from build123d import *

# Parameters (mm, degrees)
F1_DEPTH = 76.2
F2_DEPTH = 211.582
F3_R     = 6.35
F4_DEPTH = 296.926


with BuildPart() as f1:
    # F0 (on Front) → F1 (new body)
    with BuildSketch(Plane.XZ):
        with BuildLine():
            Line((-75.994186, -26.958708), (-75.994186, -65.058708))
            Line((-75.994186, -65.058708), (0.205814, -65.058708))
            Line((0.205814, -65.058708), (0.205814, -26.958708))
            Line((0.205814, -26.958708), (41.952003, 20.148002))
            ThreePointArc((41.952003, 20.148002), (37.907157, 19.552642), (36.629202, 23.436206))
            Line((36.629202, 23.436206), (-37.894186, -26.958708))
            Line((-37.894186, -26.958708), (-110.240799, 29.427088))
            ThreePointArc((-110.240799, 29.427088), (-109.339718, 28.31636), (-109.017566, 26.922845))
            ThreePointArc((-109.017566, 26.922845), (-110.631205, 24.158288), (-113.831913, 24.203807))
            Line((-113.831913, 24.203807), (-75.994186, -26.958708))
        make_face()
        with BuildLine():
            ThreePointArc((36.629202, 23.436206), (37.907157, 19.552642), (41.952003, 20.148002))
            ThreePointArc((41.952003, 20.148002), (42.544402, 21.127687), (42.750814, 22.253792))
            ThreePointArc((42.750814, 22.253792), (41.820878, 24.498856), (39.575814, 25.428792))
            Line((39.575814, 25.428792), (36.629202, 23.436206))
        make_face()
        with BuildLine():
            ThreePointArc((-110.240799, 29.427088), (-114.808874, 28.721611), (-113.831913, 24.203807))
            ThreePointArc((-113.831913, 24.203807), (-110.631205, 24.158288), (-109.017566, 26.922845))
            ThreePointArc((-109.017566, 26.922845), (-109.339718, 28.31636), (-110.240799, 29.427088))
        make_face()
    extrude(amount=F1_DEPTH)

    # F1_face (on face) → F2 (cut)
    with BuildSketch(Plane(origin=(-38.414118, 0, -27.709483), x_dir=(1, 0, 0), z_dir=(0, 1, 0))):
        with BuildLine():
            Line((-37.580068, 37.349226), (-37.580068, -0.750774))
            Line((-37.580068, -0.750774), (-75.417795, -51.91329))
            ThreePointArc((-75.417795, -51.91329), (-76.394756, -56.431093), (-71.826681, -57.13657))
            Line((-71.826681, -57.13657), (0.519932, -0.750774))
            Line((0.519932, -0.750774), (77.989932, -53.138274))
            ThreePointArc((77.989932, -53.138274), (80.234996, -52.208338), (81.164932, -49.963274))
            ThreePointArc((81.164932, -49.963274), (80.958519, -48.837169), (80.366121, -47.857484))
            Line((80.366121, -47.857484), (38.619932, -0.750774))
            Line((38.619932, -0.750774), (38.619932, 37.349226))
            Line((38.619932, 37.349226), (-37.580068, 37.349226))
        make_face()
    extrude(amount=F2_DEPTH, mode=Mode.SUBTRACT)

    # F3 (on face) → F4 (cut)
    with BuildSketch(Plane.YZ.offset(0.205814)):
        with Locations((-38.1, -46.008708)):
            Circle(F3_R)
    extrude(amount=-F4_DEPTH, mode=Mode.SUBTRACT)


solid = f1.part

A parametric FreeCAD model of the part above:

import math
import FreeCAD as App
import Part
import Sketcher
Q = App.Units.Quantity

doc = App.newDocument("Part")
body = doc.addObject("PartDesign::Body", "Body")

# Sketch on XZ plane
sketch1 = body.newObject("Sketcher::SketchObject", "Sketch")
sketch1.AttachmentSupport = (doc.getObject("XZ_Plane"), [""])
sketch1.MapMode = "FlatFace"
sketch1.addGeometry([
    Part.LineSegment(App.Vector(-75.994186, -26.958708, 0), App.Vector(-75.994186, -65.058708, 0)),  # 0
    Part.LineSegment(App.Vector(-75.994186, -65.058708, 0), App.Vector(0.205814, -65.058708, 0)),  # 1
    Part.LineSegment(App.Vector(0.205814, -65.058708, 0), App.Vector(0.205814, -26.958708, 0)),  # 2
    Part.LineSegment(App.Vector(0.205814, -26.958708, 0), App.Vector(41.952003, 20.148002, 0)),  # 3
    Part.ArcOfCircle(Part.Circle(App.Vector(39.575818, 22.25379, 0), App.Vector(0, 0, 1), 3.174996), math.radians(-41.547541), math.radians(0.000031)),  # 4
    Part.ArcOfCircle(Part.Circle(App.Vector(39.575814, 22.253792, 0), App.Vector(0, 0, 1), 3.175), math.radians(0.000002), math.radians(89.999998)),  # 5
    Part.LineSegment(App.Vector(39.575814, 25.428792, 0), App.Vector(36.629202, 23.436206, 0)),  # 6
    Part.LineSegment(App.Vector(36.629202, 23.436206, 0), App.Vector(-37.894186, -26.958708, 0)),  # 7
    Part.LineSegment(App.Vector(-37.894186, -26.958708, 0), App.Vector(-110.240799, 29.427088, 0)),  # 8
    Part.ArcOfCircle(Part.Circle(App.Vector(-112.192566, 26.922845, 0), App.Vector(0, 0, 1), 3.175), math.radians(52.067719), math.radians(238.913622)),  # 9
    Part.LineSegment(App.Vector(-113.831913, 24.203807, 0), App.Vector(-75.994186, -26.958708, 0)),  # 10
], False)
sketch1.addConstraint([
    Sketcher.Constraint("Coincident", 0, 2, 1, 1),
    Sketcher.Constraint("Coincident", 1, 2, 2, 1),
    Sketcher.Constraint("Coincident", 2, 2, 3, 1),
    Sketcher.Constraint("Tangent", 3, 2, 4, 1),
    Sketcher.Constraint("Tangent", 4, 2, 5, 1),
    Sketcher.Constraint("Coincident", 5, 2, 6, 1),
    Sketcher.Constraint("Coincident", 6, 2, 7, 1),
    Sketcher.Constraint("Coincident", 7, 2, 8, 1),
    Sketcher.Constraint("Tangent", 8, 2, 9, 1),
    Sketcher.Constraint("Coincident", 9, 2, 10, 1),
    Sketcher.Constraint("Coincident", 10, 2, 0, 1),
    Sketcher.Constraint("Vertical", 0),
    Sketcher.Constraint("Horizontal", 1),
    Sketcher.Constraint("Vertical", 2),
    Sketcher.Constraint("Equal", 5, 9),
    Sketcher.Constraint("Parallel", 6, 7),
    Sketcher.Constraint("Horizontal", 5, 3, 4, 2),
    Sketcher.Constraint("Horizontal", 2, 2, 7, 2),
    Sketcher.Constraint("Horizontal", 7, 2, 10, 2),
    Sketcher.Constraint("DistanceX", 1, 1, 1, 2, Q("3 in")),
    Sketcher.Constraint("DistanceY", 0, 2, 0, 1, Q("1.5 in")),
    Sketcher.Constraint("Radius", 4, Q("0.1249998 in")),
    Sketcher.Constraint("Radius", 5, Q("0.125 in")),
    Sketcher.Constraint("DistanceX", 7, 2, 2, 2, Q("1.5 in")),
    Sketcher.Constraint("DistanceX", 0, 2, 5, 3, Q("4.55 in")),
    Sketcher.Constraint("DistanceX", 2, 2, 5, 2, Q("1.55 in")),
    Sketcher.Constraint("DistanceY", 0, 2, 5, 3, Q("3.4375 in")),
    Sketcher.Constraint("DistanceX", 8, 2, -1, 1, 110.240799),
    Sketcher.Constraint("DistanceX", 6, 2, 3, 2, 5.322801),
    Sketcher.Constraint("DistanceX", -1, 1, 4, 3, 39.575818),
    Sketcher.Constraint("DistanceY", -1, 1, 4, 3, 22.25379),
    Sketcher.Constraint("DistanceY", -1, 1, 8, 2, 29.427088),
    Sketcher.Constraint("DistanceY", 9, 2, 9, 3, 2.719038),
])
pad1 = body.newObject("PartDesign::Pad", "Pad")
pad1.Profile = sketch1
pad1.Length = Q("3 in")

# Sketch on XZ plane
sketch2 = body.newObject("Sketcher::SketchObject", "Sketch001")
sketch2.AttachmentSupport = (doc.getObject("XZ_Plane"), [""])
sketch2.MapMode = "FlatFace"
sketch2.addGeometry([
    Part.LineSegment(App.Vector(-75.994186, -65.058709, 0), App.Vector(-75.994186, -26.958709, 0)),  # 0
    Part.LineSegment(App.Vector(-75.994186, -26.958709, 0), App.Vector(-113.831913, 24.203807, 0)),  # 1
    Part.ArcOfCircle(Part.Circle(App.Vector(-112.192566, 26.922845, 0), App.Vector(0, 0, 1), 3.175), math.radians(52.067711), math.radians(238.913619)),  # 2
    Part.LineSegment(App.Vector(-110.240799, 29.427087, 0), App.Vector(-37.894186, -26.958709, 0)),  # 3
    Part.LineSegment(App.Vector(-37.894186, -26.958709, 0), App.Vector(39.575814, 25.428791, 0)),  # 4
    Part.ArcOfCircle(Part.Circle(App.Vector(39.575814, 22.253791, 0), App.Vector(0, 0, 1), 3.175), math.radians(0.000002), math.radians(89.999998)),  # 5
    Part.ArcOfCircle(Part.Circle(App.Vector(39.575805, 22.253794, 0), App.Vector(0, 0, 1), 3.175009), math.radians(-41.547449), math.radians(-0.000061)),  # 6
    Part.LineSegment(App.Vector(41.952003, 20.148001, 0), App.Vector(0.205814, -26.958709, 0)),  # 7
    Part.LineSegment(App.Vector(0.205814, -26.958709, 0), App.Vector(0.205814, -65.058709, 0)),  # 8
    Part.LineSegment(App.Vector(0.205814, -65.058709, 0), App.Vector(-75.994186, -65.058709, 0)),  # 9
], False)
sketch2.addConstraint([
    Sketcher.Constraint("Coincident", 0, 2, 1, 1),
    Sketcher.Constraint("Coincident", 1, 2, 2, 2),
    Sketcher.Constraint("Tangent", 2, 1, 3, 1),
    Sketcher.Constraint("Coincident", 3, 2, 4, 1),
    Sketcher.Constraint("Coincident", 4, 2, 5, 2),
    Sketcher.Constraint("Tangent", 5, 1, 6, 2),
    Sketcher.Constraint("Tangent", 6, 1, 7, 1),
    Sketcher.Constraint("Coincident", 7, 2, 8, 1),
    Sketcher.Constraint("Coincident", 8, 2, 9, 1),
    Sketcher.Constraint("Coincident", 9, 2, 0, 1),
    Sketcher.Constraint("Vertical", 0),
    Sketcher.Constraint("Vertical", 8),
    Sketcher.Constraint("Horizontal", 9),
    Sketcher.Constraint("Equal", 2, 5),
    Sketcher.Constraint("Horizontal", 0, 2, 3, 2),
    Sketcher.Constraint("Horizontal", 3, 2, 7, 2),
    Sketcher.Constraint("Vertical", 5, 3, 4, 2),
    Sketcher.Constraint("DistanceX", 9, 2, 9, 1, Q("3 in")),
    Sketcher.Constraint("DistanceY", 0, 1, 0, 2, Q("1.5 in")),
    Sketcher.Constraint("Radius", 2, Q("0.125 in")),
    Sketcher.Constraint("DistanceX", 0, 2, 3, 2, Q("1.5 in")),
    Sketcher.Constraint("DistanceX", 0, 2, 5, 3, Q("4.55 in")),
    Sketcher.Constraint("Radius", 6, 3.175009),
    Sketcher.Constraint("DistanceY", 0, 2, 6, 3, Q("1.9375001 in")),
    Sketcher.Constraint("DistanceY", 5, 1, 4, 2, Q("0.125 in")),
    Sketcher.Constraint("DistanceX", 2, 1, -1, 1, 110.240799),
    Sketcher.Constraint("DistanceY", -1, 1, 6, 1, 20.148001),
    Sketcher.Constraint("DistanceX", 2, 3, 5, 3, 151.76838),
    Sketcher.Constraint("DistanceY", 6, 3, 2, 3, 4.66905),
    Sketcher.Constraint("DistanceY", 1, 2, 2, 1, 5.22328),
])
pocket1 = body.newObject("PartDesign::Pocket", "Pocket")
pocket1.Profile = sketch2
pocket1.Length = Q("8.33 in")

# Sketch on YZ plane
sketch3 = body.newObject("Sketcher::SketchObject", "Sketch002")
sketch3.AttachmentSupport = (doc.getObject("YZ_Plane"), [""])
sketch3.MapMode = "FlatFace"
sketch3.AttachmentOffset = App.Placement(App.Vector(0, 0, 0.205814), App.Rotation())
sketch3.addGeometry(Part.Circle(App.Vector(-38.1, -46.008708, 0), App.Vector(0, 0, 1), 6.35), False)
sketch3.addConstraint([
    Sketcher.Constraint("Diameter", 0, Q("0.5 in")),
    Sketcher.Constraint("DistanceX", 0, 3, -1, 1, Q("1.5 in")),
    Sketcher.Constraint("DistanceY", 0, 3, -1, 1, 46.008708),
])
pocket2 = body.newObject("PartDesign::Pocket", "Pocket001")
pocket2.Profile = sketch3
pocket2.Length = Q("11.69 in")

doc.recompute()
